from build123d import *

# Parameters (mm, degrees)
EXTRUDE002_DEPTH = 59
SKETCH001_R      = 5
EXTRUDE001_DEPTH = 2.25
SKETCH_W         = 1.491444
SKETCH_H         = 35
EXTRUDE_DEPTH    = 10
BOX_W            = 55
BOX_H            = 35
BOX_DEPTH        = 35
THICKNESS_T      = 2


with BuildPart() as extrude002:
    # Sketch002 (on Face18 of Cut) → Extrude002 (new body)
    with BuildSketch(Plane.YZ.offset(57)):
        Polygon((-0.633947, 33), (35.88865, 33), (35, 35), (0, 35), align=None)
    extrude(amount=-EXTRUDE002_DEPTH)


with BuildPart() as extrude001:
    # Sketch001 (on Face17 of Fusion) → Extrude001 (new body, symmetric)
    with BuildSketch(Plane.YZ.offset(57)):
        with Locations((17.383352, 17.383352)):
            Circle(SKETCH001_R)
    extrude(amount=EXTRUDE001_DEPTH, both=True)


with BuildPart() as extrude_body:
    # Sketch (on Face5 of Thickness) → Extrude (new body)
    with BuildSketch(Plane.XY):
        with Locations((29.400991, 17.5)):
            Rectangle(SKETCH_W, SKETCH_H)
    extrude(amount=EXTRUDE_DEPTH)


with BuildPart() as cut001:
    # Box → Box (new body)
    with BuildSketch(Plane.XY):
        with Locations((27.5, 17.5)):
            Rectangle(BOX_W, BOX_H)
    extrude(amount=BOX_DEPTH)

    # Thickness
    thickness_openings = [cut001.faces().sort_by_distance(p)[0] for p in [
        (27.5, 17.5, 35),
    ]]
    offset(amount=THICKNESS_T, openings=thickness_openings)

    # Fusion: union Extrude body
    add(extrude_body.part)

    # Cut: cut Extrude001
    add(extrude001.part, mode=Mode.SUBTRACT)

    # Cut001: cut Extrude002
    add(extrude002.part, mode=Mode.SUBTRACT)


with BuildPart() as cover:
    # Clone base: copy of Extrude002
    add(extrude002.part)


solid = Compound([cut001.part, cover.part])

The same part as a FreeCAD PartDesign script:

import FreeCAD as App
import Part
import Sketcher

V = App.Vector


def faces_at(feature, points):
    """Names of the faces that lie closest to the given points."""
    faces = feature.Shape.Faces
    near = lambda p: min(range(len(faces)), key=lambda i: faces[i].distToShape(Part.Vertex(*p))[0])
    return sorted({f"Face{near(p) + 1}" for p in points})

doc = App.newDocument("Part")
body = doc.addObject("PartDesign::Body", "Body")

# Sketch on YZ plane
sketch1 = doc.addObject("Sketcher::SketchObject", "Sketch")
body.addObject(sketch1)
sketch1.AttachmentSupport = (doc.YZ_Plane, [""])
sketch1.MapMode = "FlatFace"
sketch1.AttachmentOffset = App.Placement(V(0, 0, 57), App.Rotation())
sketch1.addGeometry([
    Part.LineSegment(V(-0.633947, 33, 0), V(35.88865, 33, 0)),
    Part.LineSegment(V(35.88865, 33, 0), V(35, 35, 0)),
    Part.LineSegment(V(35, 35, 0), V(0, 35, 0)),
    Part.LineSegment(V(0, 35, 0), V(-0.633947, 33, 0)),
], False)
sketch1.addConstraint([
    Sketcher.Constraint("Coincident", 0, 2, 1, 1),
    Sketcher.Constraint("Coincident", 1, 2, 2, 1),
    Sketcher.Constraint("Coincident", 2, 2, 3, 1),
    Sketcher.Constraint("Coincident", 3, 2, 0, 1),
    Sketcher.Constraint("Horizontal", 0),
    Sketcher.Constraint("Horizontal", 2),
    Sketcher.Constraint("PointOnObject", 2, 2, -2),
    Sketcher.Constraint("DistanceX", 2, 2, 2, 1, 35.0),
    Sketcher.Constraint("DistanceY", -1, 1, 0, 2, 33.0),
    Sketcher.Constraint("DistanceY", -1, 1, 1, 2, 35.0),
    Sketcher.Constraint("Distance", 1, 2.188538),
    Sketcher.Constraint("DistanceX", 0, 1, 0, 2, 36.522597),
])
pad1 = doc.addObject("PartDesign::Pad", "Pad")
body.addObject(pad1)
pad1.Profile = sketch1
pad1.Length = 59
pad1.Reversed = True
body2 = doc.addObject("PartDesign::Body", "Body001")

# Sketch on YZ plane
sketch2 = doc.addObject("Sketcher::SketchObject", "Sketch001")
body2.addObject(sketch2)
sketch2.AttachmentSupport = (doc.getObject("YZ_Plane001"), [""])
sketch2.MapMode = "FlatFace"
sketch2.AttachmentOffset = App.Placement(V(0, 0, 57), App.Rotation())
sketch2.addGeometry(Part.Circle(V(17.383352, 17.383352, 0), V(0, 0, 1), 5), False)
sketch2.addConstraint([
    Sketcher.Constraint("Diameter", 0, 10.0),
    Sketcher.Constraint("DistanceX", -1, 1, 0, 3, 17.383352),
    Sketcher.Constraint("DistanceY", -1, 1, 0, 3, 17.383352),
])
pad2 = doc.addObject("PartDesign::Pad", "Pad001")
body2.addObject(pad2)
pad2.Profile = sketch2
pad2.Length = 4.5
pad2.Midplane = True
body3 = doc.addObject("PartDesign::Body", "Body002")

# Sketch on XY plane
sketch3 = doc.addObject("Sketcher::SketchObject", "Sketch002")
body3.addObject(sketch3)
sketch3.AttachmentSupport = (doc.getObject("XY_Plane002"), [""])
sketch3.MapMode = "FlatFace"
sketch3.addGeometry([
    Part.LineSegment(V(28.655269, 35, 0), V(28.655269, 0, 0)),
    Part.LineSegment(V(28.655269, 0, 0), V(30.146713, 0, 0)),
    Part.LineSegment(V(30.146713, 0, 0), V(30.146713, 35, 0)),
    Part.LineSegment(V(30.146713, 35, 0), V(28.655269, 35, 0)),
], False)
sketch3.addConstraint([
    Sketcher.Constraint("Coincident", 0, 2, 1, 1),
    Sketcher.Constraint("Coincident", 1, 2, 2, 1),
    Sketcher.Constraint("Coincident", 2, 2, 3, 1),
    Sketcher.Constraint("Coincident", 3, 2, 0, 1),
    Sketcher.Constraint("Vertical", 0),
    Sketcher.Constraint("Horizontal", 1),
    Sketcher.Constraint("Vertical", 2),
    Sketcher.Constraint("Horizontal", 3),
    Sketcher.Constraint("PointOnObject", 0, 2, -1),
    Sketcher.Constraint("DistanceY", 0, 2, 0, 1, 35.0),
    Sketcher.Constraint("DistanceX", 1, 1, 1, 2, 1.491444),
    Sketcher.Constraint("DistanceX", -1, 1, 0, 2, 28.655269),
])
pad3 = doc.addObject("PartDesign::Pad", "Pad002")
body3.addObject(pad3)
pad3.Profile = sketch3
pad3.Length = 10
body4 = doc.addObject("PartDesign::Body", "Body003")

# Sketch on XY plane
sketch4 = doc.addObject("Sketcher::SketchObject", "Sketch003")
body4.addObject(sketch4)
sketch4.AttachmentSupport = (doc.getObject("XY_Plane003"), [""])
sketch4.MapMode = "FlatFace"
sketch4.addGeometry([
    Part.LineSegment(V(0, 35, 0), V(0, 0, 0)),
    Part.LineSegment(V(0, 0, 0), V(55, 0, 0)),
    Part.LineSegment(V(55, 0, 0), V(55, 35, 0)),
    Part.LineSegment(V(55, 35, 0), V(0, 35, 0)),
], False)
sketch4.addConstraint([
    Sketcher.Constraint("Coincident", 0, 2, 1, 1),
    Sketcher.Constraint("Coincident", 1, 2, 2, 1),
    Sketcher.Constraint("Coincident", 2, 2, 3, 1),
    Sketcher.Constraint("Coincident", 3, 2, 0, 1),
    Sketcher.Constraint("Vertical", 0),
    Sketcher.Constraint("Horizontal", 1),
    Sketcher.Constraint("Vertical", 2),
    Sketcher.Constraint("Horizontal", 3),
    Sketcher.Constraint("Coincident", 0, 2, -1, 1),
    Sketcher.Constraint("DistanceX", 1, 1, 1, 2, 55.0),
    Sketcher.Constraint("DistanceY", 0, 2, 0, 1, 35.0),
])
pad4 = doc.addObject("PartDesign::Pad", "Pad003")
body4.addObject(pad4)
pad4.Profile = sketch4
pad4.Length = 35
doc.recompute()

thickness = doc.addObject("PartDesign::Thickness", "Thickness")
body4.addObject(thickness)
thickness.Base = (pad4, faces_at(pad4, [(27.5, 17.5, 35)]))
thickness.Value = 2
thickness.Reversed = False
thickness.Join = "Arc"
doc.recompute()

boolean = doc.addObject("PartDesign::Boolean", "Boolean")
body4.addObject(boolean)
boolean.Type = "Fuse"
boolean.addObjects([body3])
doc.recompute()

boolean2 = doc.addObject("PartDesign::Boolean", "Boolean001")
body4.addObject(boolean2)
boolean2.Type = "Cut"
boolean2.addObjects([body2])
doc.recompute()

body5 = doc.addObject("PartDesign::Body", "Body004")
body5.BaseFeature = body
boolean3 = doc.addObject("PartDesign::Boolean", "Boolean002")
body4.addObject(boolean3)
boolean3.Type = "Cut"
boolean3.addObjects([body5])
doc.recompute()

doc.recompute()
